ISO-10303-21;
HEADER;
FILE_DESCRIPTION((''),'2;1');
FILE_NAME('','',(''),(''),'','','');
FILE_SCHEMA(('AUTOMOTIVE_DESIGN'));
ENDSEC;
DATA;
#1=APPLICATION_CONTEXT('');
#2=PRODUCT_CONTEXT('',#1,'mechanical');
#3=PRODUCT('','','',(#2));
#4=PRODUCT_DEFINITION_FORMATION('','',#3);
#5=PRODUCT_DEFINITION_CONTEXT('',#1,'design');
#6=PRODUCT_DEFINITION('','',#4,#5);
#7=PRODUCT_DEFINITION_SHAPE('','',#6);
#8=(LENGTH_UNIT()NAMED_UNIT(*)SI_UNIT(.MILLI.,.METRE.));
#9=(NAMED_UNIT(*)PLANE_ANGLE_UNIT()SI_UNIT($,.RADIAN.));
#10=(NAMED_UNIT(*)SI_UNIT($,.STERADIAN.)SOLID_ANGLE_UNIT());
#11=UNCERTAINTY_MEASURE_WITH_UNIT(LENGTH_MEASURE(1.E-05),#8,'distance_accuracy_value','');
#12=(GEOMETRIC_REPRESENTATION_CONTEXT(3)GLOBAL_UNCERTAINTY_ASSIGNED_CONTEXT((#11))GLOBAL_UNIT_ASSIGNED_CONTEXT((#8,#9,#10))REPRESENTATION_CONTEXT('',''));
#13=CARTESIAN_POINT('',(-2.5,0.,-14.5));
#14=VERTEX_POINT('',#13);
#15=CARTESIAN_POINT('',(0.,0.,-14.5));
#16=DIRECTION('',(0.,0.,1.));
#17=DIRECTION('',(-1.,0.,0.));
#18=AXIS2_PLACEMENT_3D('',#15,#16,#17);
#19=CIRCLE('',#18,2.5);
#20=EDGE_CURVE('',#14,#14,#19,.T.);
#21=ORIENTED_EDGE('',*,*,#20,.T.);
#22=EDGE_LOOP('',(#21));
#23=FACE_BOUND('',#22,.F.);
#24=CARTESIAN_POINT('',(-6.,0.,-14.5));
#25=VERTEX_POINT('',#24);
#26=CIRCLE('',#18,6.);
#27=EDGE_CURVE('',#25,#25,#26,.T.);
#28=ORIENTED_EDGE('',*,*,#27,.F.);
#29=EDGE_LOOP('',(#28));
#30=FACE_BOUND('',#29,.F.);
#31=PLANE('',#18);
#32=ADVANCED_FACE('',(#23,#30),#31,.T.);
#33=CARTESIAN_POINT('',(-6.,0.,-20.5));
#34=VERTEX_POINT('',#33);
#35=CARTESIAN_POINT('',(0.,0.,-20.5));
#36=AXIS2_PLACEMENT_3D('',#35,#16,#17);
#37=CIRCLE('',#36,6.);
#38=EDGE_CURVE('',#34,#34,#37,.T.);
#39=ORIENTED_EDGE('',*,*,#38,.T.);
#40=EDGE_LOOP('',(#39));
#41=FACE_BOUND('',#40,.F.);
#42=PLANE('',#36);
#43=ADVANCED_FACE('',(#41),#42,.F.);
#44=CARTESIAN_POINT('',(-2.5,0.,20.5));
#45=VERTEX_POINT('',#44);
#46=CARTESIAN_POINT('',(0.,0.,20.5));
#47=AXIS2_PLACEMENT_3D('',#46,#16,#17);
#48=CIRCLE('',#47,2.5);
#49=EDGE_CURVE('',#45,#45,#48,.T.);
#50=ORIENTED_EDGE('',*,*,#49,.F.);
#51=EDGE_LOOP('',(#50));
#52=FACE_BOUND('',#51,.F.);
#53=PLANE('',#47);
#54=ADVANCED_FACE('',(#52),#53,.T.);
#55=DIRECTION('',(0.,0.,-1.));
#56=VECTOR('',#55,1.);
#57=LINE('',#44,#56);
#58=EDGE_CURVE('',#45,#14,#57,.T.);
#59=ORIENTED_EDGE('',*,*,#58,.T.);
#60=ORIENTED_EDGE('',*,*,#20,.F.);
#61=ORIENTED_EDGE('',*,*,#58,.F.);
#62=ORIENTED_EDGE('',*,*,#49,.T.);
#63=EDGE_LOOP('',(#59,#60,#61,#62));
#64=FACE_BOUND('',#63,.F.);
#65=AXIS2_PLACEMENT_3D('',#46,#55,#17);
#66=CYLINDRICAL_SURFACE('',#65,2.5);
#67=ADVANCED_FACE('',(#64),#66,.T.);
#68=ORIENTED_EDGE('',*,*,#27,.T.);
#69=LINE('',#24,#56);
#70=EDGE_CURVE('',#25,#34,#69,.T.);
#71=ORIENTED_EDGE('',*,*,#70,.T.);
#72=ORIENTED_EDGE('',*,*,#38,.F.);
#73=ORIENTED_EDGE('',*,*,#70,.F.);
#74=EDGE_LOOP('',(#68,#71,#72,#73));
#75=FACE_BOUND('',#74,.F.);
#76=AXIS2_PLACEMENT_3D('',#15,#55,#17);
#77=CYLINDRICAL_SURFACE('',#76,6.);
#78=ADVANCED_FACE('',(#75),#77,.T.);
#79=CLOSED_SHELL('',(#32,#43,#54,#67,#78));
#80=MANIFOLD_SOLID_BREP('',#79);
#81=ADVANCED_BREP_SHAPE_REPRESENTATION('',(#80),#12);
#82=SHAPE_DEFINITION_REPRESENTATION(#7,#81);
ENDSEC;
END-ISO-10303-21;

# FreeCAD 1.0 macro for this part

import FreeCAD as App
import Part
import Sketcher

V = App.Vector
Q = App.Units.Quantity


def add_polygon(sketch, points):
    """Adds a closed chain of lines whose ends are joined by coincident constraints."""
    first, n = sketch.GeometryCount, len(points)
    for a, b in zip(points, points[1:] + points[:1]):
        sketch.addGeometry(Part.LineSegment(App.Vector(*a, 0), App.Vector(*b, 0)), False)
    for i in range(n):
        sketch.addConstraint(Sketcher.Constraint("Coincident", first + i, 2, first + (i + 1) % n, 1))

doc = App.newDocument("Part")
body = doc.addObject("PartDesign::Body", "Body")

# Sketch on XZ plane
sketch1 = body.newObject("Sketcher::SketchObject", "Sketch")
sketch1.AttachmentSupport = (doc.getObject("XZ_Plane"), [""])
sketch1.MapMode = "FlatFace"
add_polygon(sketch1, [(-2.5, 20.5), (0, 20.5), (0, -20.5), (-6, -20.5), (-6, -14.5), (-2.5, -14.5)])  # lines 0-5
sketch1.addConstraint([
    Sketcher.Constraint("Horizontal", 0),
    Sketcher.Constraint("Vertical", 1),
    Sketcher.Constraint("Horizontal", 2),
    Sketcher.Constraint("Vertical", 3),
    Sketcher.Constraint("Horizontal", 4),
    Sketcher.Constraint("Vertical", 5),
    Sketcher.Constraint("Symmetric", 0, 2, 1, 2, -1, 1),
    Sketcher.Constraint("Equal", 2, 3),
    Sketcher.Constraint("DistanceX", 2, 2, 2, 1, Q("6 mm")),
    Sketcher.Constraint("DistanceY", 5, 1, 5, 2, Q("35 mm")),
    Sketcher.Constraint("DistanceX", 0, 1, 0, 2, Q("2.5 mm")),
])
revolution = body.newObject("PartDesign::Revolution", "Revolution")
revolution.Profile = sketch1
revolution.ReferenceAxis = (sketch1, ["V_Axis"])
revolution.Angle = 360

doc.recompute()
